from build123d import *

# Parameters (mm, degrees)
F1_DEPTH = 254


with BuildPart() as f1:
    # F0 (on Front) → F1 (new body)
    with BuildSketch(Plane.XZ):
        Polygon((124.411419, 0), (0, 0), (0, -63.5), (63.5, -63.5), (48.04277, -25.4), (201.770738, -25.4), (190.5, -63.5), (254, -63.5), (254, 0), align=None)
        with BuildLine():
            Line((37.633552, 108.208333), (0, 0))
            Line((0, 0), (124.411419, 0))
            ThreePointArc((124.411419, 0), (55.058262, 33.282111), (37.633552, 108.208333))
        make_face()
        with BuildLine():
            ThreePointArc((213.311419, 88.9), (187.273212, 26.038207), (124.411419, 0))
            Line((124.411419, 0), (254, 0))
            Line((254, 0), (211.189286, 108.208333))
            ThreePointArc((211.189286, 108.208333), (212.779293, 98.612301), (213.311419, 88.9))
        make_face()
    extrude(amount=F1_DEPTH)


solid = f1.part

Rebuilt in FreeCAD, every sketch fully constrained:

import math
import FreeCAD as App
import Part
import Sketcher

V = App.Vector
Q = App.Units.Quantity

doc = App.newDocument("Part")
body = doc.addObject("PartDesign::Body", "Body")

# Sketch on XZ plane
sketch1 = body.newObject("Sketcher::SketchObject", "Sketch")
sketch1.AttachmentSupport = (doc.getObject("XZ_Plane"), [""])
sketch1.MapMode = "FlatFace"
sketch1.addGeometry(Part.LineSegment(V(0, 0, 0), V(0, -64, 0)), False)
sketch1.addGeometry(Part.LineSegment(V(0, -64, 0), V(64, -64, 0)), False)
sketch1.addGeometry(Part.LineSegment(V(64, -64, 0), V(48, -25, 0)), False)
sketch1.addGeometry(Part.LineSegment(V(48, -25, 0), V(202, -25, 0)), False)
sketch1.addGeometry(Part.LineSegment(V(202, -25, 0), V(190, -64, 0)), False)
sketch1.addGeometry(Part.LineSegment(V(190, -64, 0), V(254, -64, 0)), False)
sketch1.addGeometry(Part.LineSegment(V(254, -64, 0), V(254, 0, 0)), False)
sketch1.addGeometry(Part.LineSegment(V(254, 0, 0), V(211, 108, 0)), False)
sketch1.addGeometry(Part.ArcOfCircle(Part.Circle(V(124, 89, 0), V(0, 0, 1), 89), math.radians(0), math.radians(12.54)), False)
sketch1.addGeometry(Part.ArcOfCircle(Part.Circle(V(124, 89, 0), V(0, 0, 1), 89), math.radians(-90), math.radians(0)), False)
sketch1.addGeometry(Part.ArcOfCircle(Part.Circle(V(124, 89, 0), V(0, 0, 1), 89), math.radians(167), math.radians(270)), False)
sketch1.addGeometry(Part.LineSegment(V(38, 108, 0), V(0, 0, 0)), False)
sketch1.addConstraint(Sketcher.Constraint("Coincident", 0, 2, 1, 1))
sketch1.addConstraint(Sketcher.Constraint("Coincident", 1, 2, 2, 1))
sketch1.addConstraint(Sketcher.Constraint("Coincident", 2, 2, 3, 1))
sketch1.addConstraint(Sketcher.Constraint("Coincident", 3, 2, 4, 1))
sketch1.addConstraint(Sketcher.Constraint("Coincident", 4, 2, 5, 1))
sketch1.addConstraint(Sketcher.Constraint("Coincident", 5, 2, 6, 1))
sketch1.addConstraint(Sketcher.Constraint("Coincident", 6, 2, 7, 1))
sketch1.addConstraint(Sketcher.Constraint("Coincident", 7, 2, 8, 2))
sketch1.addConstraint(Sketcher.Constraint("Tangent", 8, 1, 9, 2))
sketch1.addConstraint(Sketcher.Constraint("Tangent", 9, 1, 10, 2))
sketch1.addConstraint(Sketcher.Constraint("Coincident", 10, 1, 11, 1))
sketch1.addConstraint(Sketcher.Constraint("Coincident", 11, 2, 0, 1))
sketch1.addConstraint(Sketcher.Constraint("Vertical", 0))
sketch1.addConstraint(Sketcher.Constraint("Horizontal", 1))
sketch1.addConstraint(Sketcher.Constraint("Horizontal", 3))
sketch1.addConstraint(Sketcher.Constraint("Horizontal", 5))
sketch1.addConstraint(Sketcher.Constraint("Vertical", 6))
sketch1.addConstraint(Sketcher.Constraint("Coincident", 11, 2, -1, 1))
sketch1.addConstraint(Sketcher.Constraint("Equal", 9, 10))
sketch1.addConstraint(Sketcher.Constraint("PointOnObject", 6, 2, -1))
sketch1.addConstraint(Sketcher.Constraint("PointOnObject", 9, 1, -1))
sketch1.addConstraint(Sketcher.Constraint("Horizontal", 1, 2, 4, 2))
sketch1.addConstraint(Sketcher.Constraint("Horizontal", 10, 3, 8, 1))
sketch1.addConstraint(Sketcher.Constraint("Horizontal", 7, 2, 10, 1))
sketch1.addConstraint(Sketcher.Constraint("Vertical", 10, 3, 9, 1))
sketch1.addConstraint(Sketcher.Constraint("Equal", 1, 5))
sketch1.addConstraint(Sketcher.Constraint("Equal", 5, 0))
sketch1.addConstraint(Sketcher.Constraint("Radius", 9, Q("3.5 in")))
sketch1.addConstraint(Sketcher.Constraint("DistanceX", 1, 1, 1, 2, Q("2.5 in")))
sketch1.addConstraint(Sketcher.Constraint("DistanceY", 2, 2, -1, 1, Q("1 in")))
sketch1.addConstraint(Sketcher.Constraint("DistanceX", -1, 1, 5, 2, Q("10 in")))
sketch1.addConstraint(Sketcher.Constraint("Radius", 8, Q("88.900015 mm")))
sketch1.addConstraint(Sketcher.Constraint("DistanceX", 3, 1, 3, 2, Q("153.727968 mm")))
sketch1.addConstraint(Sketcher.Constraint("Distance", 11, Q("114.565822 mm")))
sketch1.addConstraint(Sketcher.Constraint("DistanceX", -1, 1, 9, 3, Q("124.41142 mm")))
sketch1.addConstraint(Sketcher.Constraint("DistanceX", -1, 1, 2, 2, Q("48.04277 mm")))
pad1 = body.newObject("PartDesign::Pad", "Pad")
pad1.Profile = sketch1
pad1.Length = Q("10 in")

doc.recompute()
